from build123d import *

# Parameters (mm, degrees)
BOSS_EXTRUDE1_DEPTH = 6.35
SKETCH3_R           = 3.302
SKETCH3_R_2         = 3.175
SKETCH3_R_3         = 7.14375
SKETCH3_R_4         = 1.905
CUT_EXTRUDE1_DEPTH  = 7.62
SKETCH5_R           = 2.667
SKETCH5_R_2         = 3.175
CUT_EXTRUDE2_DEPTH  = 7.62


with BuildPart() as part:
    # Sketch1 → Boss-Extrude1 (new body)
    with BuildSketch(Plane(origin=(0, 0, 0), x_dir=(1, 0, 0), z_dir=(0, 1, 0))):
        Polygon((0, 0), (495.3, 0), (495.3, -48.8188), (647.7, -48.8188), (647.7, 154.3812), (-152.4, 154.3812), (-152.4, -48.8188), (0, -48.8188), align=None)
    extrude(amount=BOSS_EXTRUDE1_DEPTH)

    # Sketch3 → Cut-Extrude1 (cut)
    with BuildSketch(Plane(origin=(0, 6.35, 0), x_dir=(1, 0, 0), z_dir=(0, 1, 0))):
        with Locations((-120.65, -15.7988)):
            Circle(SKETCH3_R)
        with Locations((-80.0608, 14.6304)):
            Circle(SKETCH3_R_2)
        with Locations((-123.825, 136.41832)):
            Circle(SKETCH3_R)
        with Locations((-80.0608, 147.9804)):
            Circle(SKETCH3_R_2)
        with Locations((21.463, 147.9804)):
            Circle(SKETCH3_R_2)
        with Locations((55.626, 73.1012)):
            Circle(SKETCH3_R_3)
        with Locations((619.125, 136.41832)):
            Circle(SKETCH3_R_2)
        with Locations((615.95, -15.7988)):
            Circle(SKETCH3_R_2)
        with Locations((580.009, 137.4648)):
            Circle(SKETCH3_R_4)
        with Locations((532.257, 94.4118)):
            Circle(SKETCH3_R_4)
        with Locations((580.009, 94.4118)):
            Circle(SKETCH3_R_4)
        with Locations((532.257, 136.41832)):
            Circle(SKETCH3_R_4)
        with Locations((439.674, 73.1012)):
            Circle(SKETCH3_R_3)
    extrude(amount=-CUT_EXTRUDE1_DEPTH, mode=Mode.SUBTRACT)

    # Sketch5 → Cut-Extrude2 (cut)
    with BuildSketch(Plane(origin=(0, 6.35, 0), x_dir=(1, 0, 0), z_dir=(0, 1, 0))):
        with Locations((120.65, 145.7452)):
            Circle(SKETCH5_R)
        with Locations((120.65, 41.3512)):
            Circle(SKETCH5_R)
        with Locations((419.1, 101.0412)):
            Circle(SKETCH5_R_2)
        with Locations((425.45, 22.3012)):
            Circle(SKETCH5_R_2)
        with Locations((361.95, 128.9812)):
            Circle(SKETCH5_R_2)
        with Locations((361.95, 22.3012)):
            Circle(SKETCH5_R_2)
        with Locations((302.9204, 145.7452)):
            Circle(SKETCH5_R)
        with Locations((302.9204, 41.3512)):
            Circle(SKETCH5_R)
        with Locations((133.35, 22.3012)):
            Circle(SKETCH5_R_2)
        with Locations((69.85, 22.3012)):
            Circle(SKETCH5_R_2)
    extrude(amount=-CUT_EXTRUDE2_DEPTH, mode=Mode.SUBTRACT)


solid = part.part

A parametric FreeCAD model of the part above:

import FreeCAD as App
import Part
import Sketcher
Q = App.Units.Quantity


def add_polygon(sketch, points):
    """Adds a closed chain of lines whose ends are joined by coincident constraints."""
    first, n = sketch.GeometryCount, len(points)
    for a, b in zip(points, points[1:] + points[:1]):
        sketch.addGeometry(Part.LineSegment(App.Vector(*a, 0), App.Vector(*b, 0)), False)
    for i in range(n):
        sketch.addConstraint(Sketcher.Constraint("Coincident", first + i, 2, first + (i + 1) % n, 1))

doc = App.newDocument("Part")
params = doc.addObject("Spreadsheet::Sheet", "Params")
for row, (alias, value) in enumerate([
    ("sketch1_width", "6 in"),
    ("sketch1_height", "8 in"),
    ("sketch1_width2", "19.5 in"),
    ("sketch1_height2", "1.922 in"),
    ("pad1_length", "0.25 in"),
    ("sketch2_diameter", "0.26 in"),
    ("sketch2_diameter2", "0.25 in"),
    ("sketch2_diameter3", "0.15 in"),
    ("sketch2_diameter4", "0.5625 in"),
    ("pocket1_length", "0.3 in"),
    ("sketch3_diameter", "0.21 in"),
    ("sketch3_diameter2", "0.25 in"),
    ("pocket2_length", "0.3 in"),
], start=1):
    params.set(f"A{row}", alias)
    params.set(f"B{row}", "=" + value)
    params.setAlias(f"B{row}", alias)

body = doc.addObject("PartDesign::Body", "Body")

# Sketch on XZ plane
sketch1 = doc.addObject("Sketcher::SketchObject", "Sketch")
body.addObject(sketch1)
sketch1.AttachmentSupport = (doc.XZ_Plane, [""])
sketch1.MapMode = "FlatFace"
add_polygon(sketch1, [(0, 0), (495, 0), (495, 49), (648, 49), (648, -154), (-152, -154), (-152, 49), (0, 49)])  # lines 0-7
sketch1.addConstraint([
    Sketcher.Constraint("Horizontal", 0),
    Sketcher.Constraint("Vertical", 1),
    Sketcher.Constraint("Horizontal", 2),
    Sketcher.Constraint("Vertical", 3),
    Sketcher.Constraint("Horizontal", 4),
    Sketcher.Constraint("Vertical", 5),
    Sketcher.Constraint("Horizontal", 6),
    Sketcher.Constraint("Vertical", 7),
    Sketcher.Constraint("Coincident", 7, 2, -1, 1),
    Sketcher.Constraint("Horizontal", 2, 2, 5, 2),
    Sketcher.Constraint("Equal", 2, 6),
    Sketcher.Constraint("DistanceX", 2, 1, 2, 2, Q("6 in")),
    Sketcher.Constraint("DistanceY", 3, 2, 3, 1, Q("8 in")),
    Sketcher.Constraint("DistanceX", 0, 1, 0, 2, Q("19.5 in")),
    Sketcher.Constraint("DistanceY", 1, 1, 1, 2, Q("1.922 in")),
])
sketch1.setExpression("Constraints[19]", "Params.sketch1_width")
sketch1.setExpression("Constraints[20]", "Params.sketch1_height")
sketch1.setExpression("Constraints[21]", "Params.sketch1_width2")
sketch1.setExpression("Constraints[22]", "Params.sketch1_height2")
pad1 = doc.addObject("PartDesign::Pad", "Pad")
body.addObject(pad1)
pad1.Profile = sketch1
pad1.setExpression("Length", "Params.pad1_length")
pad1.Reversed = True

# Sketch on XZ plane
sketch2 = doc.addObject("Sketcher::SketchObject", "Sketch001")
body.addObject(sketch2)
sketch2.AttachmentSupport = (doc.XZ_Plane, [""])
sketch2.MapMode = "FlatFace"
sketch2.AttachmentOffset = App.Placement(App.Vector(0, 0, -0.25 * 25.4), App.Rotation())
sketch2.addGeometry([
    Part.Circle(App.Vector(-120.7, 15.8, 0), App.Vector(0, 0, 1), 3.3),  # 0
    Part.Circle(App.Vector(-80.1, -14.6, 0), App.Vector(0, 0, 1), 3.2),  # 1
    Part.Circle(App.Vector(-123.8, -136.4, 0), App.Vector(0, 0, 1), 3.3),  # 2
    Part.Circle(App.Vector(-80.1, -148, 0), App.Vector(0, 0, 1), 3.2),  # 3
    Part.Circle(App.Vector(21.5, -148, 0), App.Vector(0, 0, 1), 3.2),  # 4
    Part.Circle(App.Vector(55.6, -73.1, 0), App.Vector(0, 0, 1), 7.1),  # 5
    Part.Circle(App.Vector(619.1, -136.4, 0), App.Vector(0, 0, 1), 3.2),  # 6
    Part.Circle(App.Vector(616, 15.8, 0), App.Vector(0, 0, 1), 3.2),  # 7
    Part.Circle(App.Vector(580, -137.5, 0), App.Vector(0, 0, 1), 1.9),  # 8
    Part.Circle(App.Vector(532.3, -94.4, 0), App.Vector(0, 0, 1), 1.9),  # 9
    Part.Circle(App.Vector(580, -94.4, 0), App.Vector(0, 0, 1), 1.9),  # 10
    Part.Circle(App.Vector(532.3, -136.4, 0), App.Vector(0, 0, 1), 1.9),  # 11
    Part.Circle(App.Vector(439.7, -73.1, 0), App.Vector(0, 0, 1), 7.1),  # 12
], False)
sketch2.addConstraint([
    Sketcher.Constraint("Equal", 0, 2),
    Sketcher.Constraint("Equal", 1, 3),
    Sketcher.Constraint("Equal", 3, 4),
    Sketcher.Constraint("Equal", 4, 6),
    Sketcher.Constraint("Equal", 6, 7),
    Sketcher.Constraint("Equal", 8, 9),
    Sketcher.Constraint("Equal", 9, 10),
    Sketcher.Constraint("Equal", 10, 11),
    Sketcher.Constraint("Equal", 5, 12),
    Sketcher.Constraint("Horizontal", 3, 3, 4, 3),
    Sketcher.Constraint("Horizontal", 2, 3, 6, 3),
    Sketcher.Constraint("Horizontal", 0, 3, 7, 3),
    Sketcher.Constraint("Horizontal", 9, 3, 10, 3),
    Sketcher.Constraint("Horizontal", 6, 3, 11, 3),
    Sketcher.Constraint("Horizontal", 5, 3, 12, 3),
    Sketcher.Constraint("Vertical", 1, 3, 3, 3),
    Sketcher.Constraint("Vertical", 8, 3, 10, 3),
    Sketcher.Constraint("Vertical", 9, 3, 11, 3),
    Sketcher.Constraint("Diameter", 0, Q("0.26 in")),
    Sketcher.Constraint("Diameter", 1, Q("0.25 in")),
    Sketcher.Constraint("Diameter", 8, Q("0.15 in")),
    Sketcher.Constraint("Diameter", 5, Q("0.5625 in")),
    Sketcher.Constraint("DistanceY", 5, 3, 0, 3, Q("3.5 in")),
    Sketcher.Constraint("DistanceX", 0, 3, -1, 1, Q("4.75 in")),
    Sketcher.Constraint("DistanceX", -1, 1, 5, 3, Q("2.19 in")),
    Sketcher.Constraint("DistanceX", -1, 1, 7, 3, Q("24.25 in")),
    Sketcher.Constraint("DistanceX", -1, 1, 12, 3, Q("17.31 in")),
    Sketcher.Constraint("DistanceY", 3, 3, 1, 3, Q("5.25 in")),
    Sketcher.Constraint("DistanceX", 2, 3, 4, 3, Q("5.72 in")),
    Sketcher.Constraint("DistanceX", 4, 3, 6, 3, Q("23.53 in")),
    Sketcher.Constraint("DistanceX", 8, 3, 6, 3, Q("1.54 in")),
    Sketcher.Constraint("DistanceX", 9, 3, 8, 3, Q("1.88 in")),
    Sketcher.Constraint("DistanceY", -1, 1, 0, 3, Q("0.622 in")),
    Sketcher.Constraint("DistanceX", 1, 3, -1, 1, Q("3.152 in")),
    Sketcher.Constraint("DistanceY", 1, 3, -1, 1, Q("0.576 in")),
    Sketcher.Constraint("DistanceX", 2, 3, -1, 1, Q("4.875 in")),
    Sketcher.Constraint("DistanceY", 8, 3, -1, 1, Q("5.412 in")),
    Sketcher.Constraint("DistanceY", 9, 3, -1, 1, Q("3.717 in")),
    Sketcher.Constraint("DistanceY", 2, 3, -1, 1, Q("5.3708 in")),
])
sketch2.setExpression("Constraints[18]", "Params.sketch2_diameter")
sketch2.setExpression("Constraints[19]", "Params.sketch2_diameter2")
sketch2.setExpression("Constraints[20]", "Params.sketch2_diameter3")
sketch2.setExpression("Constraints[21]", "Params.sketch2_diameter4")
pocket1 = doc.addObject("PartDesign::Pocket", "Pocket")
body.addObject(pocket1)
pocket1.Profile = sketch2
pocket1.setExpression("Length", "Params.pocket1_length")
pocket1.Reversed = True

# Sketch on XZ plane
sketch3 = doc.addObject("Sketcher::SketchObject", "Sketch002")
body.addObject(sketch3)
sketch3.AttachmentSupport = (doc.XZ_Plane, [""])
sketch3.MapMode = "FlatFace"
sketch3.AttachmentOffset = App.Placement(App.Vector(0, 0, -0.25 * 25.4), App.Rotation())
sketch3.addGeometry([
    Part.Circle(App.Vector(120.7, -145.7, 0), App.Vector(0, 0, 1), 2.7),  # 0
    Part.Circle(App.Vector(120.7, -41.4, 0), App.Vector(0, 0, 1), 2.7),  # 1
    Part.Circle(App.Vector(419.1, -101, 0), App.Vector(0, 0, 1), 3.2),  # 2
    Part.Circle(App.Vector(425.4, -22.3, 0), App.Vector(0, 0, 1), 3.2),  # 3
    Part.Circle(App.Vector(361.9, -129, 0), App.Vector(0, 0, 1), 3.2),  # 4
    Part.Circle(App.Vector(361.9, -22.3, 0), App.Vector(0, 0, 1), 3.2),  # 5
    Part.Circle(App.Vector(302.9, -145.7, 0), App.Vector(0, 0, 1), 2.7),  # 6
    Part.Circle(App.Vector(302.9, -41.4, 0), App.Vector(0, 0, 1), 2.7),  # 7
    Part.Circle(App.Vector(133.3, -22.3, 0), App.Vector(0, 0, 1), 3.2),  # 8
    Part.Circle(App.Vector(69.8, -22.3, 0), App.Vector(0, 0, 1), 3.2),  # 9
], False)
sketch3.addConstraint([
    Sketcher.Constraint("Equal", 0, 1),
    Sketcher.Constraint("Equal", 2, 3),
    Sketcher.Constraint("Equal", 3, 4),
    Sketcher.Constraint("Equal", 4, 5),
    Sketcher.Constraint("Equal", 1, 6),
    Sketcher.Constraint("Equal", 6, 7),
    Sketcher.Constraint("Equal", 5, 8),
    Sketcher.Constraint("Equal", 8, 9),
    Sketcher.Constraint("Horizontal", 3, 3, 5, 3),
    Sketcher.Constraint("Horizontal", 0, 3, 6, 3),
    Sketcher.Constraint("Horizontal", 1, 3, 7, 3),
    Sketcher.Constraint("Horizontal", 5, 3, 8, 3),
    Sketcher.Constraint("Horizontal", 8, 3, 9, 3),
    Sketcher.Constraint("Vertical", 0, 3, 1, 3),
    Sketcher.Constraint("Vertical", 4, 3, 5, 3),
    Sketcher.Constraint("Vertical", 6, 3, 7, 3),
    Sketcher.Constraint("Diameter", 0, Q("0.21 in")),
    Sketcher.Constraint("Diameter", 2, Q("0.25 in")),
    Sketcher.Constraint("DistanceX", 1, 3, 3, 3, Q("12 in")),
    Sketcher.Constraint("DistanceX", 8, 3, 5, 3, Q("9 in")),
    Sketcher.Constraint("DistanceX", 9, 3, 1, 3, Q("2 in")),
    Sketcher.Constraint("DistanceX", -1, 1, 2, 3, Q("16.5 in")),
    Sketcher.Constraint("DistanceY", 2, 3, 3, 3, Q("3.1 in")),
    Sketcher.Constraint("DistanceY", 4, 3, 2, 3, Q("1.1 in")),
    Sketcher.Constraint("DistanceX", 4, 3, 3, 3, Q("2.5 in")),
    Sketcher.Constraint("DistanceX", -1, 1, 0, 3, Q("4.75 in")),
    Sketcher.Constraint("DistanceY", 0, 3, 1, 3, Q("4.11 in")),
    Sketcher.Constraint("DistanceY", 0, 3, 2, 3, Q("1.76 in")),
    Sketcher.Constraint("DistanceY", 0, 3, -1, 1, Q("5.738 in")),
    Sketcher.Constraint("DistanceX", -1, 1, 6, 3, Q("11.926 in")),
])
sketch3.setExpression("Constraints[16]", "Params.sketch3_diameter")
sketch3.setExpression("Constraints[17]", "Params.sketch3_diameter2")
pocket2 = doc.addObject("PartDesign::Pocket", "Pocket001")
body.addObject(pocket2)
pocket2.Profile = sketch3
pocket2.setExpression("Length", "Params.pocket2_length")
pocket2.Reversed = True

doc.recompute()
